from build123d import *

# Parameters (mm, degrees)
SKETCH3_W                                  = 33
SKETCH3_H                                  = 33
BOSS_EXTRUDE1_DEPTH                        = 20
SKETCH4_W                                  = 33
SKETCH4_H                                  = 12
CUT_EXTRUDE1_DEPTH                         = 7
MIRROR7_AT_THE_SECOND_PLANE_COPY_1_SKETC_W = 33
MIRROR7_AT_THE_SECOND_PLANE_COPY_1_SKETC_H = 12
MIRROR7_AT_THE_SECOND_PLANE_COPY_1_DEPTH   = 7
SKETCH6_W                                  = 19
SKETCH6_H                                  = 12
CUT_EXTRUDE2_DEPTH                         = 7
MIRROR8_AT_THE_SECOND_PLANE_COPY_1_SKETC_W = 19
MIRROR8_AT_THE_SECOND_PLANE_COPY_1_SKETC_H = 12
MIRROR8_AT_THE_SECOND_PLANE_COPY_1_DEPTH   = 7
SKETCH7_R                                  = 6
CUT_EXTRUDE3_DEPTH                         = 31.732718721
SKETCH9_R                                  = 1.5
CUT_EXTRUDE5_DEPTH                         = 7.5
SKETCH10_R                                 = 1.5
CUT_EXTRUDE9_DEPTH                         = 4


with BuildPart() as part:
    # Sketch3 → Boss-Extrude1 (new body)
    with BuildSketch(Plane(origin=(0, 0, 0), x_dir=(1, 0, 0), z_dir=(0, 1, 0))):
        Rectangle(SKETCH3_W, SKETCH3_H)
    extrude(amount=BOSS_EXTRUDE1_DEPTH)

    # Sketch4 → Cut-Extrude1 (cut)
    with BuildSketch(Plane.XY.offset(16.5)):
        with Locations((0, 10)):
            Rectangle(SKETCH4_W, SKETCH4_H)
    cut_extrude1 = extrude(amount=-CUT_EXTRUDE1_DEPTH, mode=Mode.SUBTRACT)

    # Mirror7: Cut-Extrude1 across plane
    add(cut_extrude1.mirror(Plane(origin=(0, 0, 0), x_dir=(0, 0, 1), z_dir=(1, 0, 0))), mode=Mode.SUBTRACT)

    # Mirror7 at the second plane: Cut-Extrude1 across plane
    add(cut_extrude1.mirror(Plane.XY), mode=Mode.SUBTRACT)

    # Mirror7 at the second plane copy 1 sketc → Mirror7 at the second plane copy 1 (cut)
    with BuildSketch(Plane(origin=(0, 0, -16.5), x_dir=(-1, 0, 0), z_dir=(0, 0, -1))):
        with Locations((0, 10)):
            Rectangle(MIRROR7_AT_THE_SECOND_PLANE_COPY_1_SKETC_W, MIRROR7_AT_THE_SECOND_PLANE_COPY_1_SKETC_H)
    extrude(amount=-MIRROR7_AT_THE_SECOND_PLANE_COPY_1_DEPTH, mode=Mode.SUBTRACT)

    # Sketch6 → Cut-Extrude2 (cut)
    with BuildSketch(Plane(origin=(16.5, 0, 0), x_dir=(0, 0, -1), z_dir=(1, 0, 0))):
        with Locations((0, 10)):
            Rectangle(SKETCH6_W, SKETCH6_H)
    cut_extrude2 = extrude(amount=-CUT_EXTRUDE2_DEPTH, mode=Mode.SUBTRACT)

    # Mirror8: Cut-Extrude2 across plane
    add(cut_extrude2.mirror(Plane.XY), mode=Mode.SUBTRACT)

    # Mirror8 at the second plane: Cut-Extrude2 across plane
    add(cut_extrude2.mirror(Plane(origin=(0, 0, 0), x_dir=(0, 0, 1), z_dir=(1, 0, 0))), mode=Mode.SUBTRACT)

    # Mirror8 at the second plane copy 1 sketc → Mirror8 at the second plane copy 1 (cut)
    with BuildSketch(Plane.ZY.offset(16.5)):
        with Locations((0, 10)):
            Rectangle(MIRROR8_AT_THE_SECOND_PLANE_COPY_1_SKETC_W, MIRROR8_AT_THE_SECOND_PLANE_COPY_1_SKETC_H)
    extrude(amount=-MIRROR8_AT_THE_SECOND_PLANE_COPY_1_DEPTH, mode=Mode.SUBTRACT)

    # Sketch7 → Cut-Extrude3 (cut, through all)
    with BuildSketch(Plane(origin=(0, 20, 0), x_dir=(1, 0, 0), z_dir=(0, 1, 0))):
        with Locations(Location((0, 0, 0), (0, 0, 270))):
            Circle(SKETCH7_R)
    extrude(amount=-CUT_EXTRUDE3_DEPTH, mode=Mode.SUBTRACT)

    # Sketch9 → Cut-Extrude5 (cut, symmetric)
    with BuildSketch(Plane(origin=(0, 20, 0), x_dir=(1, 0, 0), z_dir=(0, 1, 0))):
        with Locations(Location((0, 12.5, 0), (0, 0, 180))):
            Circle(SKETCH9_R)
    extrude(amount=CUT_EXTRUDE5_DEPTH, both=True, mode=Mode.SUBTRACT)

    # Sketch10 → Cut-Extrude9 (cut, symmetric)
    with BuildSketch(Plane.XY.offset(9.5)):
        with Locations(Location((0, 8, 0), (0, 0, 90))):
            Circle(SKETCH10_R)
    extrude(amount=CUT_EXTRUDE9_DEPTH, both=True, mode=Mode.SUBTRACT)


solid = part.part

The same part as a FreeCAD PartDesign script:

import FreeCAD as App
import Part
import Sketcher
from FreeCAD import Vector
Q = App.Units.Quantity


def add_polygon(sketch, points):
    """Adds a closed chain of lines whose ends are joined by coincident constraints."""
    first, n = sketch.GeometryCount, len(points)
    for a, b in zip(points, points[1:] + points[:1]):
        sketch.addGeometry(Part.LineSegment(App.Vector(*a, 0), App.Vector(*b, 0)), False)
    for i in range(n):
        sketch.addConstraint(Sketcher.Constraint("Coincident", first + i, 2, first + (i + 1) % n, 1))

doc = App.newDocument("Part")
body = doc.addObject("PartDesign::Body", "Body")

# Sketch on XZ plane
sketch1 = body.newObject("Sketcher::SketchObject", "Sketch")
sketch1.AttachmentSupport = (doc.getObject("XZ_Plane"), [""])
sketch1.MapMode = "FlatFace"
add_polygon(sketch1, [(-16, -16), (-16, 16), (16, 16), (16, -16)])  # lines 0-3
sketch1.addConstraint(Sketcher.Constraint("Vertical", 0))
sketch1.addConstraint(Sketcher.Constraint("Horizontal", 1))
sketch1.addConstraint(Sketcher.Constraint("Vertical", 2))
sketch1.addConstraint(Sketcher.Constraint("Horizontal", 3))
sketch1.addConstraint(Sketcher.Constraint("Symmetric", 0, 2, 2, 2, -1, 1))
sketch1.addConstraint(Sketcher.Constraint("Equal", 3, 0))
sketch1.addConstraint(Sketcher.Constraint("DistanceX", 1, 1, 1, 2, Q("33 mm")))
pad1 = body.newObject("PartDesign::Pad", "Pad")
pad1.Profile = sketch1
pad1.Length = 20
pad1.Reversed = True

# Sketch on XY plane
sketch2 = body.newObject("Sketcher::SketchObject", "Sketch001")
sketch2.AttachmentSupport = (doc.getObject("XY_Plane"), [""])
sketch2.MapMode = "FlatFace"
sketch2.AttachmentOffset = App.Placement(Vector(0, 0, 16.5), App.Rotation())
add_polygon(sketch2, [(-16, 16), (-16, 4), (16, 4), (16, 16)])  # lines 0-3
sketch2.addConstraint(Sketcher.Constraint("Vertical", 0))
sketch2.addConstraint(Sketcher.Constraint("Horizontal", 1))
sketch2.addConstraint(Sketcher.Constraint("Vertical", 2))
sketch2.addConstraint(Sketcher.Constraint("Horizontal", 3))
sketch2.addConstraint(Sketcher.Constraint("DistanceX", 1, 1, 1, 2, Q("33 mm")))
sketch2.addConstraint(Sketcher.Constraint("DistanceY", 0, 2, 0, 1, Q("12 mm")))
sketch2.addConstraint(Sketcher.Constraint("DistanceY", -1, 1, 0, 2, Q("4 mm")))
sketch2.addConstraint(Sketcher.Constraint("DistanceX", 0, 2, -1, 1, Q("16.5 mm")))
pocket1 = body.newObject("PartDesign::Pocket", "Pocket")
pocket1.Profile = sketch2
pocket1.Length = 7
doc.recompute()

mirrored = body.newObject("PartDesign::Mirrored", "Mirrored")
mirrored.Originals = [pocket1]
mirrored.MirrorPlane = (doc.getObject("YZ_Plane"), [""])
body.Tip = mirrored
doc.recompute()

mirrored2 = body.newObject("PartDesign::Mirrored", "Mirrored001")
mirrored2.Originals = [pocket1]
mirrored2.MirrorPlane = (doc.getObject("XY_Plane"), [""])
body.Tip = mirrored2

# Sketch on XY plane
sketch3 = body.newObject("Sketcher::SketchObject", "Sketch002")
sketch3.AttachmentSupport = (doc.getObject("XY_Plane"), [""])
sketch3.MapMode = "FlatFace"
sketch3.AttachmentOffset = App.Placement(Vector(0, 0, -16.5), App.Rotation())
add_polygon(sketch3, [(16, 16), (16, 4), (-16, 4), (-16, 16)])  # lines 0-3
sketch3.addConstraint(Sketcher.Constraint("Vertical", 0))
sketch3.addConstraint(Sketcher.Constraint("Horizontal", 1))
sketch3.addConstraint(Sketcher.Constraint("Vertical", 2))
sketch3.addConstraint(Sketcher.Constraint("Horizontal", 3))
sketch3.addConstraint(Sketcher.Constraint("DistanceX", 1, 2, 1, 1, Q("33 mm")))
sketch3.addConstraint(Sketcher.Constraint("DistanceY", 0, 2, 0, 1, Q("12 mm")))
sketch3.addConstraint(Sketcher.Constraint("DistanceY", -1, 1, 0, 2, Q("4 mm")))
sketch3.addConstraint(Sketcher.Constraint("DistanceX", -1, 1, 0, 2, Q("16.5 mm")))
pocket2 = body.newObject("PartDesign::Pocket", "Pocket001")
pocket2.Profile = sketch3
pocket2.Length = 7
pocket2.Reversed = True

# Sketch on YZ plane
sketch4 = body.newObject("Sketcher::SketchObject", "Sketch003")
sketch4.AttachmentSupport = (doc.getObject("YZ_Plane"), [""])
sketch4.MapMode = "FlatFace"
sketch4.AttachmentOffset = App.Placement(Vector(0, 0, 16.5), App.Rotation())
add_polygon(sketch4, [(16, 10), (4, 10), (4, -10), (16, -10)])  # lines 0-3
sketch4.addConstraint(Sketcher.Constraint("Horizontal", 0))
sketch4.addConstraint(Sketcher.Constraint("Vertical", 1))
sketch4.addConstraint(Sketcher.Constraint("Horizontal", 2))
sketch4.addConstraint(Sketcher.Constraint("Vertical", 3))
sketch4.addConstraint(Sketcher.Constraint("DistanceX", 0, 2, 0, 1, Q("12 mm")))
sketch4.addConstraint(Sketcher.Constraint("DistanceY", 1, 2, 1, 1, Q("19 mm")))
sketch4.addConstraint(Sketcher.Constraint("DistanceX", -1, 1, 0, 2, Q("4 mm")))
sketch4.addConstraint(Sketcher.Constraint("DistanceY", -1, 1, 0, 2, Q("9.5 mm")))
pocket3 = body.newObject("PartDesign::Pocket", "Pocket002")
pocket3.Profile = sketch4
pocket3.Length = 7
doc.recompute()

mirrored3 = body.newObject("PartDesign::Mirrored", "Mirrored002")
mirrored3.Originals = [pocket3]
mirrored3.MirrorPlane = (doc.getObject("XY_Plane"), [""])
body.Tip = mirrored3
doc.recompute()

mirrored4 = body.newObject("PartDesign::Mirrored", "Mirrored003")
mirrored4.Originals = [pocket3]
mirrored4.MirrorPlane = (doc.getObject("YZ_Plane"), [""])
body.Tip = mirrored4

# Sketch on YZ plane
sketch5 = body.newObject("Sketcher::SketchObject", "Sketch004")
sketch5.AttachmentSupport = (doc.getObject("YZ_Plane"), [""])
sketch5.MapMode = "FlatFace"
sketch5.AttachmentOffset = App.Placement(Vector(0, 0, -16.5), App.Rotation())
add_polygon(sketch5, [(16, -10), (4, -10), (4, 10), (16, 10)])  # lines 0-3
sketch5.addConstraint(Sketcher.Constraint("Horizontal", 0))
sketch5.addConstraint(Sketcher.Constraint("Vertical", 1))
sketch5.addConstraint(Sketcher.Constraint("Horizontal", 2))
sketch5.addConstraint(Sketcher.Constraint("Vertical", 3))
sketch5.addConstraint(Sketcher.Constraint("DistanceX", 0, 2, 0, 1, Q("12 mm")))
sketch5.addConstraint(Sketcher.Constraint("DistanceY", 1, 1, 1, 2, Q("19 mm")))
sketch5.addConstraint(Sketcher.Constraint("DistanceX", -1, 1, 0, 2, Q("4 mm")))
sketch5.addConstraint(Sketcher.Constraint("DistanceY", 0, 2, -1, 1, Q("9.5 mm")))
pocket4 = body.newObject("PartDesign::Pocket", "Pocket003")
pocket4.Profile = sketch5
pocket4.Length = 7
pocket4.Reversed = True

# Sketch on XZ plane
sketch6 = body.newObject("Sketcher::SketchObject", "Sketch005")
sketch6.AttachmentSupport = (doc.getObject("XZ_Plane"), [""])
sketch6.MapMode = "FlatFace"
sketch6.AttachmentOffset = App.Placement(Vector(0, 0, -20), App.Rotation())
sketch6.addGeometry(Part.Circle(Vector(0, 0, 0), Vector(0, 0, 1), 6), False)
sketch6.addConstraint(Sketcher.Constraint("Coincident", 0, 3, -1, 1))
sketch6.addConstraint(Sketcher.Constraint("Diameter", 0, Q("12 mm")))
pocket5 = body.newObject("PartDesign::Pocket", "Pocket004")
pocket5.Profile = sketch6
pocket5.Type = "ThroughAll"
pocket5.Reversed = True

# Sketch on XZ plane
sketch7 = body.newObject("Sketcher::SketchObject", "Sketch006")
sketch7.AttachmentSupport = (doc.getObject("XZ_Plane"), [""])
sketch7.MapMode = "FlatFace"
sketch7.AttachmentOffset = App.Placement(Vector(0, 0, -20), App.Rotation())
sketch7.addGeometry(Part.Circle(Vector(0, -12.5, 0), Vector(0, 0, 1), 1.5), False)
sketch7.addConstraint(Sketcher.Constraint("PointOnObject", 0, 3, -2))
sketch7.addConstraint(Sketcher.Constraint("Diameter", 0, Q("3 mm")))
sketch7.addConstraint(Sketcher.Constraint("DistanceY", 0, 3, -1, 1, Q("12.5 mm")))
pocket6 = body.newObject("PartDesign::Pocket", "Pocket005")
pocket6.Profile = sketch7
pocket6.Length = 15
pocket6.Midplane = True

# Sketch on XY plane
sketch8 = body.newObject("Sketcher::SketchObject", "Sketch007")
sketch8.AttachmentSupport = (doc.getObject("XY_Plane"), [""])
sketch8.MapMode = "FlatFace"
sketch8.AttachmentOffset = App.Placement(Vector(0, 0, 9.5), App.Rotation())
sketch8.addGeometry(Part.Circle(Vector(0, 8, 0), Vector(0, 0, 1), 1.5), False)
sketch8.addConstraint(Sketcher.Constraint("PointOnObject", 0, 3, -2))
sketch8.addConstraint(Sketcher.Constraint("Diameter", 0, Q("3 mm")))
sketch8.addConstraint(Sketcher.Constraint("DistanceY", -1, 1, 0, 3, Q("8 mm")))
pocket7 = body.newObject("PartDesign::Pocket", "Pocket006")
pocket7.Profile = sketch8
pocket7.Length = 8
pocket7.Midplane = True

doc.recompute()
